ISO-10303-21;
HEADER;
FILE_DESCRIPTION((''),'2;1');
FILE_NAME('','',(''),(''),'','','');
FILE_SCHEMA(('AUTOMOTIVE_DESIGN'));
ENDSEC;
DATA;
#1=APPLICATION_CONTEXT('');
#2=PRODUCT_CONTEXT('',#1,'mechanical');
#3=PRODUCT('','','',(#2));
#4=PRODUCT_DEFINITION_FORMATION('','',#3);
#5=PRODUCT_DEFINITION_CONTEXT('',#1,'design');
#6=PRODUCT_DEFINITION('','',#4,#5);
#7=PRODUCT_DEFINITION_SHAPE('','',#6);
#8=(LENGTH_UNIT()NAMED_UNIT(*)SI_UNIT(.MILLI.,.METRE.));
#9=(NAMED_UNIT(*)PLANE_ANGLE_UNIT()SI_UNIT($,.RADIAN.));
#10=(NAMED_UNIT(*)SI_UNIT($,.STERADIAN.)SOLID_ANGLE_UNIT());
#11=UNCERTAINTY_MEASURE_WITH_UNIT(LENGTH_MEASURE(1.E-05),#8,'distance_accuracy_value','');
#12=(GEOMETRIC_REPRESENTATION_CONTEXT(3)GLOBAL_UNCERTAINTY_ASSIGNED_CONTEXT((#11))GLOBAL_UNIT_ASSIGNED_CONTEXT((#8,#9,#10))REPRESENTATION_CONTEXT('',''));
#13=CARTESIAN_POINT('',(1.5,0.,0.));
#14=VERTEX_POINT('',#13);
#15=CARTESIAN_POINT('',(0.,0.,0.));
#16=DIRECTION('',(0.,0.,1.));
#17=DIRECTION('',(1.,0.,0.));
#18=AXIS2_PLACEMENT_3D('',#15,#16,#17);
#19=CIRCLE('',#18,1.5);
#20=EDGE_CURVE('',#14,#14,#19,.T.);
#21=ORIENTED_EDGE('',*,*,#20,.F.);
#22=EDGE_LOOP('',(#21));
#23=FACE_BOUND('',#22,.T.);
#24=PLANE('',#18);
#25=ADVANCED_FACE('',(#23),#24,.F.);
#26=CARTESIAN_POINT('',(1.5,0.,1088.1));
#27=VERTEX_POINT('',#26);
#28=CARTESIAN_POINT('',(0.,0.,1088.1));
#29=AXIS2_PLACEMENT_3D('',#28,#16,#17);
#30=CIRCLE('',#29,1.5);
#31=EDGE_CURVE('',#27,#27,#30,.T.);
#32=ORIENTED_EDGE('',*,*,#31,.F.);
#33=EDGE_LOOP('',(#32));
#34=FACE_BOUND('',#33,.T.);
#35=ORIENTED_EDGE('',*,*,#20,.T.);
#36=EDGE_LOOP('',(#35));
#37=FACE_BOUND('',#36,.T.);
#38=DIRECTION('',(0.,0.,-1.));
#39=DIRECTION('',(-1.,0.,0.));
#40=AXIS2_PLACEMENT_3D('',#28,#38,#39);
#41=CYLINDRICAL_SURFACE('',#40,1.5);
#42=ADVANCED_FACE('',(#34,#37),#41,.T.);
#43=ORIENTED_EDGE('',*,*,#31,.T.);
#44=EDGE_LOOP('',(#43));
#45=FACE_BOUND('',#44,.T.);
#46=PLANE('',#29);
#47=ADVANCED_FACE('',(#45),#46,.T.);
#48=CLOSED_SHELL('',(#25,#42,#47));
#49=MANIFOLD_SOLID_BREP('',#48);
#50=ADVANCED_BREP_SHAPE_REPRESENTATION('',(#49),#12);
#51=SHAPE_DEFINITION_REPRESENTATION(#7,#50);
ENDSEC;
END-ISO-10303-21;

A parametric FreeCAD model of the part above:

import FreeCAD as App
import Part
import Sketcher

V = App.Vector

doc = App.newDocument("Part")
body = doc.addObject("PartDesign::Body", "Body")

sketch1 = doc.addObject("Sketcher::SketchObject", "Sketch")
body.addObject(sketch1)
sketch1.AttachmentSupport = (doc.XY_Plane, [""])
sketch1.MapMode = "FlatFace"
sketch1.addGeometry(Part.Circle(V(0, 0, 0), V(0, 0, 1), 1.5), False)
sketch1.addConstraint([
    Sketcher.Constraint("Coincident", 0, 3, -1, 1),
    Sketcher.Constraint("Diameter", 0, 3.0),
])
pad1 = doc.addObject("PartDesign::Pad", "Pad")
body.addObject(pad1)
pad1.Profile = sketch1
pad1.Length = 1088.1

doc.recompute()
